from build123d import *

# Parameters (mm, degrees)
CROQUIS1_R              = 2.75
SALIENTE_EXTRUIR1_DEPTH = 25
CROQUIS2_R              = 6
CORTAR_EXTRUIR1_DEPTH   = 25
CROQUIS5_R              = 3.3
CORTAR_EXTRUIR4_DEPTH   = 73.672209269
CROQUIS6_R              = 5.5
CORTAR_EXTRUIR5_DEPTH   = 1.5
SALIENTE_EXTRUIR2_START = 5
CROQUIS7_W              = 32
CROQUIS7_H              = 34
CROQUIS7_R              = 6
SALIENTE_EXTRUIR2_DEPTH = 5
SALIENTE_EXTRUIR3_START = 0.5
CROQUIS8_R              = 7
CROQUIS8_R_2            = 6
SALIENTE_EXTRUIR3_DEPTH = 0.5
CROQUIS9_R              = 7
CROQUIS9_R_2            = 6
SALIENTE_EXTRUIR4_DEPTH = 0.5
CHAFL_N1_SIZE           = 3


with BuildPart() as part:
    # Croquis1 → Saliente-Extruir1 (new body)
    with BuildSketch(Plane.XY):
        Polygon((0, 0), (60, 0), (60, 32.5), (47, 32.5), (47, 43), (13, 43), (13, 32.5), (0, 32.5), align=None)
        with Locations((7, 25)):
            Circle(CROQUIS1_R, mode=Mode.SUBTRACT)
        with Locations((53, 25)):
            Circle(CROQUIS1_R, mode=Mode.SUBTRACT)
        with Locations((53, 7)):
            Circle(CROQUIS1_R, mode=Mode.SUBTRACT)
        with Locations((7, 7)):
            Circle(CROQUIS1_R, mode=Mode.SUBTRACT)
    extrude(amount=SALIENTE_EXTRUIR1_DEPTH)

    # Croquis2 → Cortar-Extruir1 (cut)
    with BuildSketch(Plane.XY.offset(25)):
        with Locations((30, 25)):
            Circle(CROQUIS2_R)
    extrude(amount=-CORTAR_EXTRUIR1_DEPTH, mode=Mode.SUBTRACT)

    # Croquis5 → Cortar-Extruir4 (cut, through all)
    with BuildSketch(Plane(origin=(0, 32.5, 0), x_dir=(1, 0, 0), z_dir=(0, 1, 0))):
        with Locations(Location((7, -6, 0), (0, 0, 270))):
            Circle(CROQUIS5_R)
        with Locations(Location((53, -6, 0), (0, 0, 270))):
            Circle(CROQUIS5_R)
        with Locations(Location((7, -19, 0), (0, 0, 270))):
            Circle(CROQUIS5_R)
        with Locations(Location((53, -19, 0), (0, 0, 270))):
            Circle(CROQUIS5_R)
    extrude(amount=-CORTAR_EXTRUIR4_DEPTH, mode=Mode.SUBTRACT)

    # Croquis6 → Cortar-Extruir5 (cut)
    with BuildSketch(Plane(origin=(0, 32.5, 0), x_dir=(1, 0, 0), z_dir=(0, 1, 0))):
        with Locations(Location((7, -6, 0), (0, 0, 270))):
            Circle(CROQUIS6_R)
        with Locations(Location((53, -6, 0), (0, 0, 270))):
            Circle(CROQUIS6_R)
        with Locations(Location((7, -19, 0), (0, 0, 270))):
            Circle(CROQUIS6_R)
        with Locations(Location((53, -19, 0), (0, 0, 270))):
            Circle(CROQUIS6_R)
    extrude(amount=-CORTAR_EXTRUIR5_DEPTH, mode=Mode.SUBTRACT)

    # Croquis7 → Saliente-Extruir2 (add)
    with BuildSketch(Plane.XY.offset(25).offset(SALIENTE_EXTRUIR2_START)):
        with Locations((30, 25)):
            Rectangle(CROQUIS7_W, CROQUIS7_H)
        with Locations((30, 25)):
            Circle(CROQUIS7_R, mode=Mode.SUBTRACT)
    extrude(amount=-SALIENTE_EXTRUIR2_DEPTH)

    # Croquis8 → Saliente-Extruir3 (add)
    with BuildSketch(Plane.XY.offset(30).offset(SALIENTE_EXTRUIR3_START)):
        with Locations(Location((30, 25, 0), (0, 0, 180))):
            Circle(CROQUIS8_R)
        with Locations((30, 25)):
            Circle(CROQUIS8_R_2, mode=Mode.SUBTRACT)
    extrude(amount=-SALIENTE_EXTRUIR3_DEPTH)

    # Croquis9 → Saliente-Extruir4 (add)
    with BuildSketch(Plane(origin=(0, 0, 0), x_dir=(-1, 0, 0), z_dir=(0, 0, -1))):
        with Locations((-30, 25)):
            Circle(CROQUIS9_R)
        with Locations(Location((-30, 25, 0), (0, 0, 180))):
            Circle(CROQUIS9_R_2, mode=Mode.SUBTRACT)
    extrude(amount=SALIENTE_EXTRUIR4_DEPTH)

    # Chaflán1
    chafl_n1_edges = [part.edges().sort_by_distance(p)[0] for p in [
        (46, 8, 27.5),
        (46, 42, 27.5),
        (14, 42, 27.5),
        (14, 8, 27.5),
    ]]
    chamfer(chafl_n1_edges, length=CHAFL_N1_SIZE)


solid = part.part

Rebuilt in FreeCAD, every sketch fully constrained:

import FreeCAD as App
import Part
import Sketcher
from FreeCAD import Vector
Q = App.Units.Quantity


def edges_at(feature, points):
    """Names of the edges that pass closest to the given points."""
    edges = feature.Shape.Edges
    near = lambda p: min(range(len(edges)), key=lambda i: edges[i].distToShape(Part.Vertex(*p))[0])
    return sorted({f"Edge{near(p) + 1}" for p in points})

doc = App.newDocument("Part")
body = doc.addObject("PartDesign::Body", "Body")

sketch1 = body.newObject("Sketcher::SketchObject", "Sketch")
sketch1.AttachmentSupport = (doc.getObject("XY_Plane"), [""])
sketch1.MapMode = "FlatFace"
sketch1.addGeometry(Part.LineSegment(Vector(0, 0, 0), Vector(60, 0, 0)), False)
sketch1.addGeometry(Part.LineSegment(Vector(60, 0, 0), Vector(60, 32.5, 0)), False)
sketch1.addGeometry(Part.LineSegment(Vector(60, 32.5, 0), Vector(47, 32.5, 0)), False)
sketch1.addGeometry(Part.LineSegment(Vector(47, 32.5, 0), Vector(47, 43, 0)), False)
sketch1.addGeometry(Part.LineSegment(Vector(47, 43, 0), Vector(13, 43, 0)), False)
sketch1.addGeometry(Part.LineSegment(Vector(13, 43, 0), Vector(13, 32.5, 0)), False)
sketch1.addGeometry(Part.LineSegment(Vector(13, 32.5, 0), Vector(0, 32.5, 0)), False)
sketch1.addGeometry(Part.LineSegment(Vector(0, 32.5, 0), Vector(0, 0, 0)), False)
sketch1.addGeometry(Part.Circle(Vector(7, 7, 0), Vector(0, 0, 1), 2.8), False)
sketch1.addGeometry(Part.Circle(Vector(53, 7, 0), Vector(0, 0, 1), 2.8), False)
sketch1.addGeometry(Part.Circle(Vector(7, 25, 0), Vector(0, 0, 1), 2.8), False)
sketch1.addGeometry(Part.Circle(Vector(53, 25, 0), Vector(0, 0, 1), 2.8), False)
sketch1.addConstraint(Sketcher.Constraint("Coincident", 0, 2, 1, 1))
sketch1.addConstraint(Sketcher.Constraint("Coincident", 1, 2, 2, 1))
sketch1.addConstraint(Sketcher.Constraint("Coincident", 2, 2, 3, 1))
sketch1.addConstraint(Sketcher.Constraint("Coincident", 3, 2, 4, 1))
sketch1.addConstraint(Sketcher.Constraint("Coincident", 4, 2, 5, 1))
sketch1.addConstraint(Sketcher.Constraint("Coincident", 5, 2, 6, 1))
sketch1.addConstraint(Sketcher.Constraint("Coincident", 6, 2, 7, 1))
sketch1.addConstraint(Sketcher.Constraint("Coincident", 7, 2, 0, 1))
sketch1.addConstraint(Sketcher.Constraint("Horizontal", 0))
sketch1.addConstraint(Sketcher.Constraint("Vertical", 1))
sketch1.addConstraint(Sketcher.Constraint("Horizontal", 2))
sketch1.addConstraint(Sketcher.Constraint("Vertical", 3))
sketch1.addConstraint(Sketcher.Constraint("Horizontal", 4))
sketch1.addConstraint(Sketcher.Constraint("Vertical", 5))
sketch1.addConstraint(Sketcher.Constraint("Horizontal", 6))
sketch1.addConstraint(Sketcher.Constraint("Vertical", 7))
sketch1.addConstraint(Sketcher.Constraint("Coincident", 7, 2, -1, 1))
sketch1.addConstraint(Sketcher.Constraint("Equal", 8, 9))
sketch1.addConstraint(Sketcher.Constraint("Equal", 9, 10))
sketch1.addConstraint(Sketcher.Constraint("Equal", 10, 11))
sketch1.addConstraint(Sketcher.Constraint("Horizontal", 8, 3, 9, 3))
sketch1.addConstraint(Sketcher.Constraint("Horizontal", 10, 3, 11, 3))
sketch1.addConstraint(Sketcher.Constraint("Horizontal", 2, 2, 5, 2))
sketch1.addConstraint(Sketcher.Constraint("Vertical", 8, 3, 10, 3))
sketch1.addConstraint(Sketcher.Constraint("Vertical", 9, 3, 11, 3))
sketch1.addConstraint(Sketcher.Constraint("Equal", 2, 6))
sketch1.addConstraint(Sketcher.Constraint("Diameter", 8, Q("5.5 mm")))
sketch1.addConstraint(Sketcher.Constraint("DistanceX", 0, 1, 0, 2, Q("60 mm")))
sketch1.addConstraint(Sketcher.Constraint("DistanceX", 2, 2, 2, 1, Q("13 mm")))
sketch1.addConstraint(Sketcher.Constraint("DistanceY", 1, 1, 1, 2, Q("32.5 mm")))
sketch1.addConstraint(Sketcher.Constraint("DistanceY", 3, 1, 3, 2, Q("10.5 mm")))
sketch1.addConstraint(Sketcher.Constraint("DistanceX", -1, 1, 8, 3, Q("7 mm")))
sketch1.addConstraint(Sketcher.Constraint("DistanceY", -1, 1, 8, 3, Q("7 mm")))
sketch1.addConstraint(Sketcher.Constraint("DistanceX", -1, 1, 9, 3, Q("53 mm")))
sketch1.addConstraint(Sketcher.Constraint("DistanceY", -1, 1, 10, 3, Q("25 mm")))
pad1 = body.newObject("PartDesign::Pad", "Pad")
pad1.Profile = sketch1
pad1.Length = 25

sketch2 = body.newObject("Sketcher::SketchObject", "Sketch001")
sketch2.AttachmentSupport = (doc.getObject("XY_Plane"), [""])
sketch2.MapMode = "FlatFace"
sketch2.AttachmentOffset = App.Placement(Vector(0, 0, 25), App.Rotation())
sketch2.addGeometry(Part.Circle(Vector(30, 25, 0), Vector(0, 0, 1), 6), False)
sketch2.addConstraint(Sketcher.Constraint("Diameter", 0, Q("12 mm")))
sketch2.addConstraint(Sketcher.Constraint("DistanceX", -1, 1, 0, 3, Q("30 mm")))
sketch2.addConstraint(Sketcher.Constraint("DistanceY", -1, 1, 0, 3, Q("25 mm")))
pocket1 = body.newObject("PartDesign::Pocket", "Pocket")
pocket1.Profile = sketch2
pocket1.Length = 25

sketch3 = body.newObject("Sketcher::SketchObject", "Sketch002")
sketch3.AttachmentSupport = (doc.getObject("XZ_Plane"), [""])
sketch3.MapMode = "FlatFace"
sketch3.AttachmentOffset = App.Placement(Vector(0, 0, -32.5), App.Rotation())
sketch3.addGeometry(Part.Circle(Vector(7, 6, 0), Vector(0, 0, 1), 3.3), False)
sketch3.addGeometry(Part.Circle(Vector(53, 6, 0), Vector(0, 0, 1), 3.3), False)
sketch3.addGeometry(Part.Circle(Vector(7, 19, 0), Vector(0, 0, 1), 3.3), False)
sketch3.addGeometry(Part.Circle(Vector(53, 19, 0), Vector(0, 0, 1), 3.3), False)
sketch3.addConstraint(Sketcher.Constraint("Equal", 0, 1))
sketch3.addConstraint(Sketcher.Constraint("Equal", 1, 2))
sketch3.addConstraint(Sketcher.Constraint("Equal", 2, 3))
sketch3.addConstraint(Sketcher.Constraint("Horizontal", 0, 3, 1, 3))
sketch3.addConstraint(Sketcher.Constraint("Horizontal", 2, 3, 3, 3))
sketch3.addConstraint(Sketcher.Constraint("Vertical", 0, 3, 2, 3))
sketch3.addConstraint(Sketcher.Constraint("Vertical", 1, 3, 3, 3))
sketch3.addConstraint(Sketcher.Constraint("Diameter", 0, Q("6.6 mm")))
sketch3.addConstraint(Sketcher.Constraint("DistanceX", -1, 1, 0, 3, Q("7 mm")))
sketch3.addConstraint(Sketcher.Constraint("DistanceY", -1, 1, 0, 3, Q("6 mm")))
sketch3.addConstraint(Sketcher.Constraint("DistanceX", -1, 1, 1, 3, Q("53 mm")))
sketch3.addConstraint(Sketcher.Constraint("DistanceY", -1, 1, 2, 3, Q("19 mm")))
pocket2 = body.newObject("PartDesign::Pocket", "Pocket001")
pocket2.Profile = sketch3
pocket2.Type = "ThroughAll"
pocket2.Reversed = True

sketch4 = body.newObject("Sketcher::SketchObject", "Sketch003")
sketch4.AttachmentSupport = (doc.getObject("XZ_Plane"), [""])
sketch4.MapMode = "FlatFace"
sketch4.AttachmentOffset = App.Placement(Vector(0, 0, -32.5), App.Rotation())
sketch4.addGeometry(Part.Circle(Vector(7, 6, 0), Vector(0, 0, 1), 6), False)
sketch4.addGeometry(Part.Circle(Vector(53, 6, 0), Vector(0, 0, 1), 6), False)
sketch4.addGeometry(Part.Circle(Vector(7, 19, 0), Vector(0, 0, 1), 6), False)
sketch4.addGeometry(Part.Circle(Vector(53, 19, 0), Vector(0, 0, 1), 6), False)
sketch4.addConstraint(Sketcher.Constraint("Equal", 0, 1))
sketch4.addConstraint(Sketcher.Constraint("Equal", 1, 2))
sketch4.addConstraint(Sketcher.Constraint("Equal", 2, 3))
sketch4.addConstraint(Sketcher.Constraint("Horizontal", 0, 3, 1, 3))
sketch4.addConstraint(Sketcher.Constraint("Horizontal", 2, 3, 3, 3))
sketch4.addConstraint(Sketcher.Constraint("Vertical", 0, 3, 2, 3))
sketch4.addConstraint(Sketcher.Constraint("Vertical", 1, 3, 3, 3))
sketch4.addConstraint(Sketcher.Constraint("Diameter", 0, Q("11 mm")))
sketch4.addConstraint(Sketcher.Constraint("DistanceX", -1, 1, 0, 3, Q("7 mm")))
sketch4.addConstraint(Sketcher.Constraint("DistanceY", -1, 1, 0, 3, Q("6 mm")))
sketch4.addConstraint(Sketcher.Constraint("DistanceX", -1, 1, 1, 3, Q("53 mm")))
sketch4.addConstraint(Sketcher.Constraint("DistanceY", -1, 1, 2, 3, Q("19 mm")))
pocket3 = body.newObject("PartDesign::Pocket", "Pocket002")
pocket3.Profile = sketch4
pocket3.Length = 1.5
pocket3.Reversed = True

sketch5 = body.newObject("Sketcher::SketchObject", "Sketch004")
sketch5.AttachmentSupport = (doc.getObject("XY_Plane"), [""])
sketch5.MapMode = "FlatFace"
sketch5.AttachmentOffset = App.Placement(Vector(0, 0, 30), App.Rotation())
sketch5.addGeometry(Part.LineSegment(Vector(14, 42, 0), Vector(14, 8, 0)), False)
sketch5.addGeometry(Part.LineSegment(Vector(14, 8, 0), Vector(46, 8, 0)), False)
sketch5.addGeometry(Part.LineSegment(Vector(46, 8, 0), Vector(46, 42, 0)), False)
sketch5.addGeometry(Part.LineSegment(Vector(46, 42, 0), Vector(14, 42, 0)), False)
sketch5.addGeometry(Part.Circle(Vector(30, 25, 0), Vector(0, 0, 1), 6), False)
sketch5.addConstraint(Sketcher.Constraint("Coincident", 0, 2, 1, 1))
sketch5.addConstraint(Sketcher.Constraint("Coincident", 1, 2, 2, 1))
sketch5.addConstraint(Sketcher.Constraint("Coincident", 2, 2, 3, 1))
sketch5.addConstraint(Sketcher.Constraint("Coincident", 3, 2, 0, 1))
sketch5.addConstraint(Sketcher.Constraint("Vertical", 0))
sketch5.addConstraint(Sketcher.Constraint("Horizontal", 1))
sketch5.addConstraint(Sketcher.Constraint("Vertical", 2))
sketch5.addConstraint(Sketcher.Constraint("Horizontal", 3))
sketch5.addConstraint(Sketcher.Constraint("Diameter", 4, Q("12 mm")))
sketch5.addConstraint(Sketcher.Constraint("DistanceX", 1, 1, 1, 2, Q("32 mm")))
sketch5.addConstraint(Sketcher.Constraint("DistanceY", 0, 2, 0, 1, Q("34 mm")))
sketch5.addConstraint(Sketcher.Constraint("DistanceX", -1, 1, 4, 3, Q("30 mm")))
sketch5.addConstraint(Sketcher.Constraint("DistanceY", -1, 1, 4, 3, Q("25 mm")))
sketch5.addConstraint(Sketcher.Constraint("DistanceX", -1, 1, 0, 2, Q("14 mm")))
sketch5.addConstraint(Sketcher.Constraint("DistanceY", -1, 1, 0, 2, Q("8 mm")))
pad2 = body.newObject("PartDesign::Pad", "Pad001")
pad2.Profile = sketch5
pad2.Length = 5
pad2.Reversed = True

sketch6 = body.newObject("Sketcher::SketchObject", "Sketch005")
sketch6.AttachmentSupport = (doc.getObject("XY_Plane"), [""])
sketch6.MapMode = "FlatFace"
sketch6.AttachmentOffset = App.Placement(Vector(0, 0, 30.5), App.Rotation())
sketch6.addGeometry(Part.Circle(Vector(30, 25, 0), Vector(0, 0, 1), 7), False)
sketch6.addGeometry(Part.Circle(Vector(30, 25, 0), Vector(0, 0, 1), 6), False)
sketch6.addConstraint(Sketcher.Constraint("Coincident", 1, 3, 0, 3))
sketch6.addConstraint(Sketcher.Constraint("Diameter", 0, Q("14 mm")))
sketch6.addConstraint(Sketcher.Constraint("Diameter", 1, Q("12 mm")))
sketch6.addConstraint(Sketcher.Constraint("DistanceX", -1, 1, 0, 3, Q("30 mm")))
sketch6.addConstraint(Sketcher.Constraint("DistanceY", -1, 1, 0, 3, Q("25 mm")))
pad3 = body.newObject("PartDesign::Pad", "Pad002")
pad3.Profile = sketch6
pad3.Length = 0.5
pad3.Reversed = True

sketch7 = body.newObject("Sketcher::SketchObject", "Sketch006")
sketch7.AttachmentSupport = (doc.getObject("XY_Plane"), [""])
sketch7.MapMode = "FlatFace"
sketch7.addGeometry(Part.Circle(Vector(30, 25, 0), Vector(0, 0, 1), 7), False)
sketch7.addGeometry(Part.Circle(Vector(30, 25, 0), Vector(0, 0, 1), 6), False)
sketch7.addConstraint(Sketcher.Constraint("Coincident", 1, 3, 0, 3))
sketch7.addConstraint(Sketcher.Constraint("Diameter", 0, Q("14 mm")))
sketch7.addConstraint(Sketcher.Constraint("Diameter", 1, Q("12 mm")))
sketch7.addConstraint(Sketcher.Constraint("DistanceX", -1, 1, 0, 3, Q("30 mm")))
sketch7.addConstraint(Sketcher.Constraint("DistanceY", -1, 1, 0, 3, Q("25 mm")))
pad4 = body.newObject("PartDesign::Pad", "Pad003")
pad4.Profile = sketch7
pad4.Length = 0.5
pad4.Reversed = True
doc.recompute()

chamfer = body.newObject("PartDesign::Chamfer", "Chamfer")
chamfer.Base = (pad4, edges_at(pad4, [
    (46, 8, 27.5),
    (46, 42, 27.5),
    (14, 42, 27.5),
    (14, 8, 27.5),
]))
chamfer.Size = 3

doc.recompute()
